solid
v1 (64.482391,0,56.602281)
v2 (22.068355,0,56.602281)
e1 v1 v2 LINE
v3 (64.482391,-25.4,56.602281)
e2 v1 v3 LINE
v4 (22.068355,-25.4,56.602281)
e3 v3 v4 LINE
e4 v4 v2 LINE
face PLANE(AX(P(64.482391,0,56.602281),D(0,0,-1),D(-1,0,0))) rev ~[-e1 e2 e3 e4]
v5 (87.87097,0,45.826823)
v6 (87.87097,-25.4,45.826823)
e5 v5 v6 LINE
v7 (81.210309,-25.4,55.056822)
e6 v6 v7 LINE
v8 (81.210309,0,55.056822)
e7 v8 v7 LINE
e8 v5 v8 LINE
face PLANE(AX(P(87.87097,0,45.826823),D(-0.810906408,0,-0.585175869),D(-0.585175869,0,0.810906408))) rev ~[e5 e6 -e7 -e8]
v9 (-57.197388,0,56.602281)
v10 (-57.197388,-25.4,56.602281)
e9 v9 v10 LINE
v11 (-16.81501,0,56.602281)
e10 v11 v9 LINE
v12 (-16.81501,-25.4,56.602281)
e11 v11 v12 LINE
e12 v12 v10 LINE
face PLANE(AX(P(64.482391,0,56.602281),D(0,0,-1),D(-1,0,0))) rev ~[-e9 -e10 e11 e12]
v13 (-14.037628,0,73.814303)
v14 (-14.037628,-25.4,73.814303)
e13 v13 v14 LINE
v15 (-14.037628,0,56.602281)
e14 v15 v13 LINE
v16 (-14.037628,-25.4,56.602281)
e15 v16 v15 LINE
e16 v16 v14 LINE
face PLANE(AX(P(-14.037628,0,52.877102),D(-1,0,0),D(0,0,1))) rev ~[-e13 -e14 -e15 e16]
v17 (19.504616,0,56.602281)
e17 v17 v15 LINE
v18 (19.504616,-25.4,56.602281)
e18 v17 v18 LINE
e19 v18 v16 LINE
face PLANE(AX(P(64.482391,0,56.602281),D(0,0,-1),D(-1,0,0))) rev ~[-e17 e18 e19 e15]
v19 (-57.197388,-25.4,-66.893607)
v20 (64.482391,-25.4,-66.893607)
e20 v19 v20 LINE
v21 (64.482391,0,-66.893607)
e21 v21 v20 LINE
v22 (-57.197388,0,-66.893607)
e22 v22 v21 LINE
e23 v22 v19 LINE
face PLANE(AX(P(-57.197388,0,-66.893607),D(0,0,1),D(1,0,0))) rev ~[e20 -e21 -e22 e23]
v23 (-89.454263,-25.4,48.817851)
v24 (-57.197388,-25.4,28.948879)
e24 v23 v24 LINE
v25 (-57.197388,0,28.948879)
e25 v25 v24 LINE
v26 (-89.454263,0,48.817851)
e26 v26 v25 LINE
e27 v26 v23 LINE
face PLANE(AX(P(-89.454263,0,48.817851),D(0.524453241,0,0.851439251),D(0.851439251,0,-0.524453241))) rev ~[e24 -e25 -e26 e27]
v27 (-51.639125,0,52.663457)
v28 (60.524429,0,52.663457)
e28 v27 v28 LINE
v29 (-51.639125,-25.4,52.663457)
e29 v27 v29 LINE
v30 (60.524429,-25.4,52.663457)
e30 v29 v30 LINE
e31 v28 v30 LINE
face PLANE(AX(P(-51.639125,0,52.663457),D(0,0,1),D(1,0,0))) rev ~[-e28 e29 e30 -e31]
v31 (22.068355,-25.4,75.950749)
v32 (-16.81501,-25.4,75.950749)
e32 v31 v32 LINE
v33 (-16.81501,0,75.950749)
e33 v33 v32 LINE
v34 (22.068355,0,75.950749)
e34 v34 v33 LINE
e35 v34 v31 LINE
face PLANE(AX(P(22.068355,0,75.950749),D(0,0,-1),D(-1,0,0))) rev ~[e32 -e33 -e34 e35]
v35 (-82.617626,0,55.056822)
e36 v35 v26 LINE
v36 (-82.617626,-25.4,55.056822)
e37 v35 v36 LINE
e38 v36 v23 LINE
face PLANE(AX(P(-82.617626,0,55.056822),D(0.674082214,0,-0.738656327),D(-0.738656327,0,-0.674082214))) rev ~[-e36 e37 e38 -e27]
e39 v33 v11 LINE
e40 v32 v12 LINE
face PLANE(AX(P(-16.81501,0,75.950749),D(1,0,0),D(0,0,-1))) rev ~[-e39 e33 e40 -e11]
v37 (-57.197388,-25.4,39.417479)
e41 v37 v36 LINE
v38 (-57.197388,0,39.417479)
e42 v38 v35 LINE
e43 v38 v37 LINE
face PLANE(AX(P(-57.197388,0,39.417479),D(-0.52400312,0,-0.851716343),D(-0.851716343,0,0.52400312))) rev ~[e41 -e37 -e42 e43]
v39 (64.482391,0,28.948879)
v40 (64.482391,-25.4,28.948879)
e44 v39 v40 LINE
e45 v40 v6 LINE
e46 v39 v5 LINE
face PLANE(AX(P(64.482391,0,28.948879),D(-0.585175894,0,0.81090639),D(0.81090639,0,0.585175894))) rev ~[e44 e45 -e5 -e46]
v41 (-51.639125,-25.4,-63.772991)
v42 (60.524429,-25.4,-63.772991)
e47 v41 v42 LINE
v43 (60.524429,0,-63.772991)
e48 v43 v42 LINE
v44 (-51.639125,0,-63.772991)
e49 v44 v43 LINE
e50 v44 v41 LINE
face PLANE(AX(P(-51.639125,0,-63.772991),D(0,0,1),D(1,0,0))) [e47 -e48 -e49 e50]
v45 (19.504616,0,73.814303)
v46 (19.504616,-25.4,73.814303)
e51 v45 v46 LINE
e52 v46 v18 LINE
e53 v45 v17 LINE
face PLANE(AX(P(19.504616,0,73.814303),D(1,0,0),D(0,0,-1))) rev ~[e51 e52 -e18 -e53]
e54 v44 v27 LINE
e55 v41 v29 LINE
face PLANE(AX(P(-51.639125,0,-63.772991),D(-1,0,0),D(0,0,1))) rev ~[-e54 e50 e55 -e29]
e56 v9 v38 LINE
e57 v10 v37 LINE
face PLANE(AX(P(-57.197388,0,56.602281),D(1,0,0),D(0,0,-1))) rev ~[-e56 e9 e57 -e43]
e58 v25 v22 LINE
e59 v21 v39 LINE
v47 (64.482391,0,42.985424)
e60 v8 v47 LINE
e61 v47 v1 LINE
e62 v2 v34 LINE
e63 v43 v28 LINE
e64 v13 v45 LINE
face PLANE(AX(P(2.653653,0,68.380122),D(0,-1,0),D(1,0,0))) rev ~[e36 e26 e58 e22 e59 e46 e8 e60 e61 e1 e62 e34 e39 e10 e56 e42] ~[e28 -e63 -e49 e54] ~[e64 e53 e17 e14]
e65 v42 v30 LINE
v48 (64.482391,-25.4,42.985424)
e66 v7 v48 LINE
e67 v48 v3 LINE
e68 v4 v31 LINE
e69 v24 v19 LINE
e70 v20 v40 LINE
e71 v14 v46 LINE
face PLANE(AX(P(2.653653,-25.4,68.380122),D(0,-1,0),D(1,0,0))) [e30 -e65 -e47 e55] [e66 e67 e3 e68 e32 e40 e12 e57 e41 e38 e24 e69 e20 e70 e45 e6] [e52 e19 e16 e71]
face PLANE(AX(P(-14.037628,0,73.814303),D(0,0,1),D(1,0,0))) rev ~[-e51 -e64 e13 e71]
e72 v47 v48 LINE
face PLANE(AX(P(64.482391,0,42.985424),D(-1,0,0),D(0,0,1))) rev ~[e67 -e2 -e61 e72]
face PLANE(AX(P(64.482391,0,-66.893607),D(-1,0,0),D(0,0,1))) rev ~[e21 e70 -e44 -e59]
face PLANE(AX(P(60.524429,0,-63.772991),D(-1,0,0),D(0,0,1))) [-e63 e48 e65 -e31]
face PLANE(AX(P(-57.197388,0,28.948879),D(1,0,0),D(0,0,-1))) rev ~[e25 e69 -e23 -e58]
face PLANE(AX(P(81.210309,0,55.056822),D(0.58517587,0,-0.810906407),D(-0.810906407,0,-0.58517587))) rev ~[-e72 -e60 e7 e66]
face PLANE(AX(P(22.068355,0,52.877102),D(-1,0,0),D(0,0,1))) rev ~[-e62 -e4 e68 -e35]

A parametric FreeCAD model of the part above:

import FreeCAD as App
import Part
import Sketcher
Q = App.Units.Quantity


def add_polygon(sketch, points):
    """Adds a closed chain of lines whose ends are joined by coincident constraints."""
    first, n = sketch.GeometryCount, len(points)
    for a, b in zip(points, points[1:] + points[:1]):
        sketch.addGeometry(Part.LineSegment(App.Vector(*a, 0), App.Vector(*b, 0)), False)
    for i in range(n):
        sketch.addConstraint(Sketcher.Constraint("Coincident", first + i, 2, first + (i + 1) % n, 1))

doc = App.newDocument("Part")
body = doc.addObject("PartDesign::Body", "Body")

sketch1 = body.newObject("Sketcher::SketchObject", "Sketch")
sketch1.AttachmentSupport = (doc.getObject("XZ_Plane"), [""])
sketch1.MapMode = "FlatFace"
add_polygon(sketch1, [(64.482391, 56.602281), (-57.197388, 56.602281), (-57.197388, 39.417479), (-82.617626, 55.056822), (-89.454263, 48.817851), (-57.197388, 28.948879), (-57.197388, -66.893607), (64.482391, -66.893607), (64.482391, 28.948879), (87.87097, 45.826823), (81.210309, 55.056822), (64.482391, 42.985424)])
add_polygon(sketch1, [(60.524429, -63.772991), (-51.639125, -63.772991), (-51.639125, 52.663457), (60.524429, 52.663457)])
sketch1.addConstraint(Sketcher.Constraint("Horizontal", 0))
sketch1.addConstraint(Sketcher.Constraint("Vertical", 1))
sketch1.addConstraint(Sketcher.Constraint("Vertical", 5))
sketch1.addConstraint(Sketcher.Constraint("Horizontal", 6))
sketch1.addConstraint(Sketcher.Constraint("Vertical", 7))
sketch1.addConstraint(Sketcher.Constraint("Vertical", 11))
sketch1.addConstraint(Sketcher.Constraint("Horizontal", 12))
sketch1.addConstraint(Sketcher.Constraint("Vertical", 13))
sketch1.addConstraint(Sketcher.Constraint("Horizontal", 14))
sketch1.addConstraint(Sketcher.Constraint("Vertical", 15))
sketch1.addConstraint(Sketcher.Constraint("Perpendicular", 8, 9))
sketch1.addConstraint(Sketcher.Constraint("Perpendicular", 9, 10))
sketch1.addConstraint(Sketcher.Constraint("Horizontal", 4, 2, 7, 2))
sketch1.addConstraint(Sketcher.Constraint("Horizontal", 2, 2, 9, 2))
sketch1.addConstraint(Sketcher.Constraint("Vertical", 1, 2, 4, 2))
sketch1.addConstraint(Sketcher.Constraint("Vertical", 7, 2, 10, 2))
sketch1.addConstraint(Sketcher.Constraint("DistanceY", 1, 2, 1, 1, 17.184802))
sketch1.addConstraint(Sketcher.Constraint("DistanceX", 0, 2, 0, 1, 121.679779))
sketch1.addConstraint(Sketcher.Constraint("DistanceY", 13, 1, 13, 2, 116.436448))
sketch1.addConstraint(Sketcher.Constraint("DistanceY", 4, 2, 1, 2, 10.4686))
sketch1.addConstraint(Sketcher.Constraint("DistanceY", 8, 2, 9, 2, 9.229999))
sketch1.addConstraint(Sketcher.Constraint("DistanceY", 10, 2, 8, 2, 2.841399))
sketch1.addConstraint(Sketcher.Constraint("DistanceX", 2, 2, 13, 2, 30.978501))
sketch1.addConstraint(Sketcher.Constraint("DistanceX", 12, 2, 12, 1, 112.163555))
sketch1.addConstraint(Sketcher.Constraint("DistanceY", 5, 2, 5, 1, 95.842486))
sketch1.addConstraint(Sketcher.Constraint("DistanceY", 11, 1, 11, 2, 13.616857))
sketch1.addConstraint(Sketcher.Constraint("DistanceY", -1, 1, 0, 2, 56.602281))
sketch1.addConstraint(Sketcher.Constraint("DistanceY", -1, 1, 3, 2, 48.817851))
sketch1.addConstraint(Sketcher.Constraint("DistanceX", -1, 1, 6, 2, 64.482391))
sketch1.addConstraint(Sketcher.Constraint("DistanceY", 12, 2, -1, 1, 63.772991))
sketch1.addConstraint(Sketcher.Constraint("DistanceX", -1, 1, 14, 2, 60.524429))
sketch1.addConstraint(Sketcher.Constraint("Distance", 3, 9.255505))
pad1 = body.newObject("PartDesign::Pad", "Pad")
pad1.Profile = sketch1
pad1.Length = Q("1 in")

sketch2 = body.newObject("Sketcher::SketchObject", "Sketch001")
sketch2.AttachmentSupport = (doc.getObject("XZ_Plane"), [""])
sketch2.MapMode = "FlatFace"
add_polygon(sketch2, [(-16.81501, 75.950749), (-16.81501, 52.877102), (-14.037628, 52.877102), (-14.037628, 73.814303), (19.504616, 73.814303), (19.504616, 52.877102), (22.068355, 52.877102), (22.068355, 75.950749)])
sketch2.addConstraint(Sketcher.Constraint("Vertical", 0))
sketch2.addConstraint(Sketcher.Constraint("Horizontal", 1))
sketch2.addConstraint(Sketcher.Constraint("Vertical", 2))
sketch2.addConstraint(Sketcher.Constraint("Horizontal", 3))
sketch2.addConstraint(Sketcher.Constraint("Vertical", 4))
sketch2.addConstraint(Sketcher.Constraint("Horizontal", 5))
sketch2.addConstraint(Sketcher.Constraint("Vertical", 6))
sketch2.addConstraint(Sketcher.Constraint("Horizontal", 7))
sketch2.addConstraint(Sketcher.Constraint("Horizontal", 1, 2, 4, 2))
sketch2.addConstraint(Sketcher.Constraint("DistanceY", 2, 1, 2, 2, 20.937201))
sketch2.addConstraint(Sketcher.Constraint("DistanceX", 5, 1, 5, 2, 2.563739))
sketch2.addConstraint(Sketcher.Constraint("DistanceX", 1, 1, 1, 2, 2.777382))
sketch2.addConstraint(Sketcher.Constraint("DistanceX", 3, 1, 3, 2, 33.542244))
sketch2.addConstraint(Sketcher.Constraint("DistanceY", 0, 2, 0, 1, 23.073647))
sketch2.addConstraint(Sketcher.Constraint("DistanceX", 0, 2, -1, 1, 16.81501))
sketch2.addConstraint(Sketcher.Constraint("DistanceY", -1, 1, 6, 2, 75.950749))
pad2 = body.newObject("PartDesign::Pad", "Pad001")
pad2.Profile = sketch2
pad2.Length = Q("1 in")

doc.recompute()
